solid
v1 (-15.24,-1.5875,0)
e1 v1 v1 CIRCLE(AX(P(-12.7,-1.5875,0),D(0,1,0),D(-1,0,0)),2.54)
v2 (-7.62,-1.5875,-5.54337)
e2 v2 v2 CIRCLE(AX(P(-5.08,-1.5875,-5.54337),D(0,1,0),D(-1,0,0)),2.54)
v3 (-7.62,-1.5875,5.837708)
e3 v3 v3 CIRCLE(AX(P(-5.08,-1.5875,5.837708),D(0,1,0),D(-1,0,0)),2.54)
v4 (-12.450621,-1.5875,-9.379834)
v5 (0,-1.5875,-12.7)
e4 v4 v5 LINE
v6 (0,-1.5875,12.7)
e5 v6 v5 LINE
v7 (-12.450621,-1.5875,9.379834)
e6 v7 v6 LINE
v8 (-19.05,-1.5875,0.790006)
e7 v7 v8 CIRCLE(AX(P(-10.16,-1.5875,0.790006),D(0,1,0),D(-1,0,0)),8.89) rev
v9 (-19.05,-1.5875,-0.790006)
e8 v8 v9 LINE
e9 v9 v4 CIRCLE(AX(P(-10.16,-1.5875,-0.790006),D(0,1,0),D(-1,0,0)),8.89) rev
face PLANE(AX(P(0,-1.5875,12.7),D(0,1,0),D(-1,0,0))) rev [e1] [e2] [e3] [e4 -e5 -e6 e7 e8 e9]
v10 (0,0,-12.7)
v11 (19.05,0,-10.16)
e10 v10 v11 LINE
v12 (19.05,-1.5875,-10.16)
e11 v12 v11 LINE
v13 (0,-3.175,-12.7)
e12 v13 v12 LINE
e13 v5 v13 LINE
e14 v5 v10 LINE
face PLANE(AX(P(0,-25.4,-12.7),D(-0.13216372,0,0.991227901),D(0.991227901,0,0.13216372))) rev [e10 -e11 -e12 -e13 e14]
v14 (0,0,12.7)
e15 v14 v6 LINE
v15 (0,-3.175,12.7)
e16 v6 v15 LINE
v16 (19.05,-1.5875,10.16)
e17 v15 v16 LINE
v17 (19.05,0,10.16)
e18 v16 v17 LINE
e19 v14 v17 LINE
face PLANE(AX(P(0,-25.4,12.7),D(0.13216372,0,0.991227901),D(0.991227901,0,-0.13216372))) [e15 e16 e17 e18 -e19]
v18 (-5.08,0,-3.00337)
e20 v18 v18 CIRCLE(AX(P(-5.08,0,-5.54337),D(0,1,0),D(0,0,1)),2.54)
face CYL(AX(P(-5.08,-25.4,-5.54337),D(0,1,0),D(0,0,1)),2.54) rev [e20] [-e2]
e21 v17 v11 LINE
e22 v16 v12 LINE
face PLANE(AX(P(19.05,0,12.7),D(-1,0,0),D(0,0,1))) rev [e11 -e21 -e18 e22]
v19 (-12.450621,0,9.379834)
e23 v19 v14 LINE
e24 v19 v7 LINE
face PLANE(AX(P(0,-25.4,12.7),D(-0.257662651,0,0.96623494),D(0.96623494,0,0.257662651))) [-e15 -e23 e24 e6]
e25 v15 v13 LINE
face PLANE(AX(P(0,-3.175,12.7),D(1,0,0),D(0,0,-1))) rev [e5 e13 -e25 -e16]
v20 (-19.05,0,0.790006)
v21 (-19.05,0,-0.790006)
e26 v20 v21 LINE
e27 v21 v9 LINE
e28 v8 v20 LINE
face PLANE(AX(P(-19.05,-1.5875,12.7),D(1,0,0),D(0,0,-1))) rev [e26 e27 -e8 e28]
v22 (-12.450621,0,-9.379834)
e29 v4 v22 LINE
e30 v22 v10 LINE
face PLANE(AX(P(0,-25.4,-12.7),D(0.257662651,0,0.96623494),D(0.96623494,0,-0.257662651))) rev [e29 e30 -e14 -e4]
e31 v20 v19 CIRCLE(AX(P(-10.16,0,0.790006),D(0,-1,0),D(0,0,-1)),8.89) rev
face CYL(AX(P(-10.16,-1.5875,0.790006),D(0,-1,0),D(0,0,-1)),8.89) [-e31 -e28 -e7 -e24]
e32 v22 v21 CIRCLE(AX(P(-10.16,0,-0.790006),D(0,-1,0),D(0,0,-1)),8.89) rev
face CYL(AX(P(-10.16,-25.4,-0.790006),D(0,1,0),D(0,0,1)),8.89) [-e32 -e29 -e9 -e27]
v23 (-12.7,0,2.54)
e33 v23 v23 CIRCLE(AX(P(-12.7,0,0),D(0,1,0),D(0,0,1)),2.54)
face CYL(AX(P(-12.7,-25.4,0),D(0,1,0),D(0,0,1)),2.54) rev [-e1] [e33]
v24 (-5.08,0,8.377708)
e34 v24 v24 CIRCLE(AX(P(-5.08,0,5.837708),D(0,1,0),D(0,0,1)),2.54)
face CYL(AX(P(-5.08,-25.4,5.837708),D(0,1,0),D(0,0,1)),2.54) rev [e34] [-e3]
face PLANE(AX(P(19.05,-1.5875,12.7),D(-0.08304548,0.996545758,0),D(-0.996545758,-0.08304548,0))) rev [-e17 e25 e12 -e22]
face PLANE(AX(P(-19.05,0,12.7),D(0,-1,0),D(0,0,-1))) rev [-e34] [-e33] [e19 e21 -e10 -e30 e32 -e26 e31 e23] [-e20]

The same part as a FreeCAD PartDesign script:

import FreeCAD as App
import Part
import Sketcher
from FreeCAD import Vector
Q = App.Units.Quantity


def edges_at(feature, points):
    """Names of the edges that pass closest to the given points."""
    edges = feature.Shape.Edges
    near = lambda p: min(range(len(edges)), key=lambda i: edges[i].distToShape(Part.Vertex(*p))[0])
    return sorted({f"Edge{near(p) + 1}" for p in points})

doc = App.newDocument("Part")
params = doc.addObject("Spreadsheet::Sheet", "Params")
for row, (alias, value) in enumerate([
    ("sketch1_width", "1.5 in"),
    ("sketch1_height", "0.0625 in"),
    ("pad1_length", "1 in"),
    ("sketch2_height", "0.1 in"),
    ("sketch2_width", "0.75 in"),
    ("pocket1_length", "1 in"),
    ("sketch3_height", "0.2 in"),
    ("sketch3_width", "0.75 in"),
    ("pocket2_length", "1 in"),
    ("fillet_radius", "0.35 in"),
    ("sketch4_diameter", "0.2 in"),
    ("pocket3_length", "1 in"),
], start=1):
    params.set(f"A{row}", alias)
    params.set(f"B{row}", "=" + value)
    params.setAlias(f"B{row}", alias)

body = doc.addObject("PartDesign::Body", "Body")

# Sketch on XY plane
sketch1 = body.newObject("Sketcher::SketchObject", "Sketch")
sketch1.AttachmentSupport = (doc.getObject("XY_Plane"), [""])
sketch1.MapMode = "FlatFace"
sketch1.addGeometry([
    Part.LineSegment(Vector(19.1, 0, 0), Vector(-19.1, 0, 0)),  # 0
    Part.LineSegment(Vector(-19.1, 0, 0), Vector(-19.1, -1.6, 0)),  # 1
    Part.LineSegment(Vector(-19.1, -1.6, 0), Vector(0, -1.6, 0)),  # 2
    Part.LineSegment(Vector(0, -1.6, 0), Vector(0, -3.2, 0)),  # 3
    Part.LineSegment(Vector(0, -3.2, 0), Vector(19.1, -1.6, 0)),  # 4
    Part.LineSegment(Vector(19.1, -1.6, 0), Vector(19.1, 0, 0)),  # 5
], False)
sketch1.addConstraint([
    Sketcher.Constraint("Coincident", 0, 2, 1, 1),
    Sketcher.Constraint("Coincident", 1, 2, 2, 1),
    Sketcher.Constraint("Coincident", 2, 2, 3, 1),
    Sketcher.Constraint("Coincident", 3, 2, 4, 1),
    Sketcher.Constraint("Coincident", 4, 2, 5, 1),
    Sketcher.Constraint("Coincident", 5, 2, 0, 1),
    Sketcher.Constraint("Horizontal", 0),
    Sketcher.Constraint("Vertical", 1),
    Sketcher.Constraint("Horizontal", 2),
    Sketcher.Constraint("Vertical", 3),
    Sketcher.Constraint("Vertical", 5),
    Sketcher.Constraint("Symmetric", 0, 2, 5, 2, -1, 1),
    Sketcher.Constraint("PointOnObject", 2, 2, -2),
    Sketcher.Constraint("Horizontal", 2, 2, 4, 2),
    Sketcher.Constraint("Equal", 1, 3),
    Sketcher.Constraint("DistanceX", 0, 2, 0, 1, Q("1.5 in")),
    Sketcher.Constraint("DistanceY", 1, 2, 1, 1, Q("0.0625 in")),
])
sketch1.setExpression("Constraints[15]", "Params.sketch1_width")
sketch1.setExpression("Constraints[16]", "Params.sketch1_height")
pad1 = body.newObject("PartDesign::Pad", "Pad")
pad1.Profile = sketch1
pad1.setExpression("Length", "Params.pad1_length")
pad1.Midplane = True

# Sketch on XZ plane
sketch2 = body.newObject("Sketcher::SketchObject", "Sketch001")
sketch2.AttachmentSupport = (doc.getObject("XZ_Plane"), [""])
sketch2.MapMode = "FlatFace"
sketch2.addGeometry([
    Part.LineSegment(Vector(0, -12.7, 0), Vector(19.1, -10.2, 0)),
    Part.LineSegment(Vector(19.1, -10.2, 0), Vector(19.1, -12.7, 0)),
    Part.LineSegment(Vector(19.1, -12.7, 0), Vector(0, -12.7, 0)),
], False)
sketch2.addConstraint([
    Sketcher.Constraint("Coincident", 0, 2, 1, 1),
    Sketcher.Constraint("Coincident", 1, 2, 2, 1),
    Sketcher.Constraint("Coincident", 2, 2, 0, 1),
    Sketcher.Constraint("Vertical", 1),
    Sketcher.Constraint("Horizontal", 2),
    Sketcher.Constraint("PointOnObject", 2, 2, -2),
    Sketcher.Constraint("DistanceY", 1, 2, 1, 1, Q("0.1 in")),
    Sketcher.Constraint("DistanceX", 2, 2, 2, 1, Q("0.75 in")),
    Sketcher.Constraint("DistanceY", 0, 2, -1, 1, Q("0.4 in")),
])
sketch2.setExpression("Constraints[6]", "Params.sketch2_height")
sketch2.setExpression("Constraints[7]", "Params.sketch2_width")
pocket1 = body.newObject("PartDesign::Pocket", "Pocket")
pocket1.Profile = sketch2
pocket1.setExpression("Length", "Params.pocket1_length")
pocket1.Reversed = True
doc.recompute()

mirrored = body.newObject("PartDesign::Mirrored", "Mirrored")
mirrored.Originals = [pocket1]
mirrored.MirrorPlane = (doc.getObject("XY_Plane"), [""])
body.Tip = mirrored

# Sketch on XZ plane
sketch3 = body.newObject("Sketcher::SketchObject", "Sketch002")
sketch3.AttachmentSupport = (doc.getObject("XZ_Plane"), [""])
sketch3.MapMode = "FlatFace"
sketch3.addGeometry([
    Part.LineSegment(Vector(-19, -8, 0), Vector(0, -13, 0)),
    Part.LineSegment(Vector(0, -13, 0), Vector(-19, -13, 0)),
    Part.LineSegment(Vector(-19, -13, 0), Vector(-19, -8, 0)),
], False)
sketch3.addConstraint([
    Sketcher.Constraint("Coincident", 0, 2, 1, 1),
    Sketcher.Constraint("Coincident", 1, 2, 2, 1),
    Sketcher.Constraint("Coincident", 2, 2, 0, 1),
    Sketcher.Constraint("Horizontal", 1),
    Sketcher.Constraint("Vertical", 2),
    Sketcher.Constraint("PointOnObject", 0, 2, -2),
    Sketcher.Constraint("DistanceY", 2, 1, 2, 2, Q("0.2 in")),
    Sketcher.Constraint("DistanceX", 1, 2, 1, 1, Q("0.75 in")),
    Sketcher.Constraint("DistanceY", 0, 2, -1, 1, Q("0.5 in")),
])
sketch3.setExpression("Constraints[6]", "Params.sketch3_height")
sketch3.setExpression("Constraints[7]", "Params.sketch3_width")
pocket2 = body.newObject("PartDesign::Pocket", "Pocket001")
pocket2.Profile = sketch3
pocket2.setExpression("Length", "Params.pocket2_length")
pocket2.Reversed = True
doc.recompute()

mirrored2 = body.newObject("PartDesign::Mirrored", "Mirrored001")
mirrored2.Originals = [pocket2]
mirrored2.MirrorPlane = (doc.getObject("XY_Plane"), [""])
body.Tip = mirrored2
doc.recompute()

fillet = body.newObject("PartDesign::Fillet", "Fillet")
fillet.Base = (mirrored2, edges_at(mirrored2, [(-19.05, -0.794, -7.62), (-19.05, -0.794, 7.62)]))
fillet.setExpression("Radius", "Params.fillet_radius")

# Sketch on XZ plane
sketch4 = body.newObject("Sketcher::SketchObject", "Sketch003")
sketch4.AttachmentSupport = (doc.getObject("XZ_Plane"), [""])
sketch4.MapMode = "FlatFace"
sketch4.addGeometry([
    Part.Circle(Vector(-5.1, -5.5, 0), Vector(0, 0, 1), 2.5),
    Part.Circle(Vector(-5.1, 5.8, 0), Vector(0, 0, 1), 2.5),
    Part.Circle(Vector(-12.7, 0, 0), Vector(0, 0, 1), 2.5),
], False)
sketch4.addConstraint([
    Sketcher.Constraint("Equal", 0, 1),
    Sketcher.Constraint("Equal", 1, 2),
    Sketcher.Constraint("PointOnObject", 2, 3, -1),
    Sketcher.Constraint("Vertical", 0, 3, 1, 3),
    Sketcher.Constraint("Diameter", 0, Q("0.2 in")),
    Sketcher.Constraint("DistanceX", 0, 3, -1, 1, Q("0.2 in")),
    Sketcher.Constraint("DistanceX", 2, 3, -1, 1, Q("0.5 in")),
    Sketcher.Constraint("DistanceY", 0, 3, -1, 1, Q("5.54337 mm")),
    Sketcher.Constraint("DistanceY", -1, 1, 1, 3, Q("5.837708 mm")),
])
sketch4.setExpression("Constraints[4]", "Params.sketch4_diameter")
pocket3 = body.newObject("PartDesign::Pocket", "Pocket002")
pocket3.Profile = sketch4
pocket3.setExpression("Length", "Params.pocket3_length")
pocket3.Reversed = True

doc.recompute()
